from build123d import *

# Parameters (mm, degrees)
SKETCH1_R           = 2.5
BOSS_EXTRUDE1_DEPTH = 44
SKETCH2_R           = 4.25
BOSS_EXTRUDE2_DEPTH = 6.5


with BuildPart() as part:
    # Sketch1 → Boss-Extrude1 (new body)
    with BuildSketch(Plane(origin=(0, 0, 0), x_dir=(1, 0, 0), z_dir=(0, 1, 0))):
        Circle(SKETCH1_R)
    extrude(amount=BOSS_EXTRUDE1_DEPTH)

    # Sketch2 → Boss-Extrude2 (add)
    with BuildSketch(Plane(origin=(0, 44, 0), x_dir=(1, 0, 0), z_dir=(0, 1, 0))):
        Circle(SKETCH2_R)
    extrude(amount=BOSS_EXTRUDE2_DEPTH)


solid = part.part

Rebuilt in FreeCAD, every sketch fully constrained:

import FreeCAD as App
import Part
import Sketcher
Q = App.Units.Quantity

doc = App.newDocument("Part")
body = doc.addObject("PartDesign::Body", "Body")

# Sketch on XZ plane
sketch1 = body.newObject("Sketcher::SketchObject", "Sketch")
sketch1.AttachmentSupport = (doc.getObject("XZ_Plane"), [""])
sketch1.MapMode = "FlatFace"
sketch1.addGeometry(Part.Circle(App.Vector(0, 0, 0), App.Vector(0, 0, 1), 2.5), False)
sketch1.addConstraint(Sketcher.Constraint("Coincident", 0, 3, -1, 1))
sketch1.addConstraint(Sketcher.Constraint("Diameter", 0, Q("5 mm")))
pad1 = body.newObject("PartDesign::Pad", "Pad")
pad1.Profile = sketch1
pad1.Length = 44
pad1.Reversed = True

# Sketch on XZ plane
sketch2 = body.newObject("Sketcher::SketchObject", "Sketch001")
sketch2.AttachmentSupport = (doc.getObject("XZ_Plane"), [""])
sketch2.MapMode = "FlatFace"
sketch2.AttachmentOffset = App.Placement(App.Vector(0, 0, -44), App.Rotation())
sketch2.addGeometry(Part.Circle(App.Vector(0, 0, 0), App.Vector(0, 0, 1), 4.25), False)
sketch2.addConstraint(Sketcher.Constraint("Coincident", 0, 3, -1, 1))
sketch2.addConstraint(Sketcher.Constraint("Diameter", 0, Q("8.5 mm")))
pad2 = body.newObject("PartDesign::Pad", "Pad001")
pad2.Profile = sketch2
pad2.Length = 6.5
pad2.Reversed = True

doc.recompute()
